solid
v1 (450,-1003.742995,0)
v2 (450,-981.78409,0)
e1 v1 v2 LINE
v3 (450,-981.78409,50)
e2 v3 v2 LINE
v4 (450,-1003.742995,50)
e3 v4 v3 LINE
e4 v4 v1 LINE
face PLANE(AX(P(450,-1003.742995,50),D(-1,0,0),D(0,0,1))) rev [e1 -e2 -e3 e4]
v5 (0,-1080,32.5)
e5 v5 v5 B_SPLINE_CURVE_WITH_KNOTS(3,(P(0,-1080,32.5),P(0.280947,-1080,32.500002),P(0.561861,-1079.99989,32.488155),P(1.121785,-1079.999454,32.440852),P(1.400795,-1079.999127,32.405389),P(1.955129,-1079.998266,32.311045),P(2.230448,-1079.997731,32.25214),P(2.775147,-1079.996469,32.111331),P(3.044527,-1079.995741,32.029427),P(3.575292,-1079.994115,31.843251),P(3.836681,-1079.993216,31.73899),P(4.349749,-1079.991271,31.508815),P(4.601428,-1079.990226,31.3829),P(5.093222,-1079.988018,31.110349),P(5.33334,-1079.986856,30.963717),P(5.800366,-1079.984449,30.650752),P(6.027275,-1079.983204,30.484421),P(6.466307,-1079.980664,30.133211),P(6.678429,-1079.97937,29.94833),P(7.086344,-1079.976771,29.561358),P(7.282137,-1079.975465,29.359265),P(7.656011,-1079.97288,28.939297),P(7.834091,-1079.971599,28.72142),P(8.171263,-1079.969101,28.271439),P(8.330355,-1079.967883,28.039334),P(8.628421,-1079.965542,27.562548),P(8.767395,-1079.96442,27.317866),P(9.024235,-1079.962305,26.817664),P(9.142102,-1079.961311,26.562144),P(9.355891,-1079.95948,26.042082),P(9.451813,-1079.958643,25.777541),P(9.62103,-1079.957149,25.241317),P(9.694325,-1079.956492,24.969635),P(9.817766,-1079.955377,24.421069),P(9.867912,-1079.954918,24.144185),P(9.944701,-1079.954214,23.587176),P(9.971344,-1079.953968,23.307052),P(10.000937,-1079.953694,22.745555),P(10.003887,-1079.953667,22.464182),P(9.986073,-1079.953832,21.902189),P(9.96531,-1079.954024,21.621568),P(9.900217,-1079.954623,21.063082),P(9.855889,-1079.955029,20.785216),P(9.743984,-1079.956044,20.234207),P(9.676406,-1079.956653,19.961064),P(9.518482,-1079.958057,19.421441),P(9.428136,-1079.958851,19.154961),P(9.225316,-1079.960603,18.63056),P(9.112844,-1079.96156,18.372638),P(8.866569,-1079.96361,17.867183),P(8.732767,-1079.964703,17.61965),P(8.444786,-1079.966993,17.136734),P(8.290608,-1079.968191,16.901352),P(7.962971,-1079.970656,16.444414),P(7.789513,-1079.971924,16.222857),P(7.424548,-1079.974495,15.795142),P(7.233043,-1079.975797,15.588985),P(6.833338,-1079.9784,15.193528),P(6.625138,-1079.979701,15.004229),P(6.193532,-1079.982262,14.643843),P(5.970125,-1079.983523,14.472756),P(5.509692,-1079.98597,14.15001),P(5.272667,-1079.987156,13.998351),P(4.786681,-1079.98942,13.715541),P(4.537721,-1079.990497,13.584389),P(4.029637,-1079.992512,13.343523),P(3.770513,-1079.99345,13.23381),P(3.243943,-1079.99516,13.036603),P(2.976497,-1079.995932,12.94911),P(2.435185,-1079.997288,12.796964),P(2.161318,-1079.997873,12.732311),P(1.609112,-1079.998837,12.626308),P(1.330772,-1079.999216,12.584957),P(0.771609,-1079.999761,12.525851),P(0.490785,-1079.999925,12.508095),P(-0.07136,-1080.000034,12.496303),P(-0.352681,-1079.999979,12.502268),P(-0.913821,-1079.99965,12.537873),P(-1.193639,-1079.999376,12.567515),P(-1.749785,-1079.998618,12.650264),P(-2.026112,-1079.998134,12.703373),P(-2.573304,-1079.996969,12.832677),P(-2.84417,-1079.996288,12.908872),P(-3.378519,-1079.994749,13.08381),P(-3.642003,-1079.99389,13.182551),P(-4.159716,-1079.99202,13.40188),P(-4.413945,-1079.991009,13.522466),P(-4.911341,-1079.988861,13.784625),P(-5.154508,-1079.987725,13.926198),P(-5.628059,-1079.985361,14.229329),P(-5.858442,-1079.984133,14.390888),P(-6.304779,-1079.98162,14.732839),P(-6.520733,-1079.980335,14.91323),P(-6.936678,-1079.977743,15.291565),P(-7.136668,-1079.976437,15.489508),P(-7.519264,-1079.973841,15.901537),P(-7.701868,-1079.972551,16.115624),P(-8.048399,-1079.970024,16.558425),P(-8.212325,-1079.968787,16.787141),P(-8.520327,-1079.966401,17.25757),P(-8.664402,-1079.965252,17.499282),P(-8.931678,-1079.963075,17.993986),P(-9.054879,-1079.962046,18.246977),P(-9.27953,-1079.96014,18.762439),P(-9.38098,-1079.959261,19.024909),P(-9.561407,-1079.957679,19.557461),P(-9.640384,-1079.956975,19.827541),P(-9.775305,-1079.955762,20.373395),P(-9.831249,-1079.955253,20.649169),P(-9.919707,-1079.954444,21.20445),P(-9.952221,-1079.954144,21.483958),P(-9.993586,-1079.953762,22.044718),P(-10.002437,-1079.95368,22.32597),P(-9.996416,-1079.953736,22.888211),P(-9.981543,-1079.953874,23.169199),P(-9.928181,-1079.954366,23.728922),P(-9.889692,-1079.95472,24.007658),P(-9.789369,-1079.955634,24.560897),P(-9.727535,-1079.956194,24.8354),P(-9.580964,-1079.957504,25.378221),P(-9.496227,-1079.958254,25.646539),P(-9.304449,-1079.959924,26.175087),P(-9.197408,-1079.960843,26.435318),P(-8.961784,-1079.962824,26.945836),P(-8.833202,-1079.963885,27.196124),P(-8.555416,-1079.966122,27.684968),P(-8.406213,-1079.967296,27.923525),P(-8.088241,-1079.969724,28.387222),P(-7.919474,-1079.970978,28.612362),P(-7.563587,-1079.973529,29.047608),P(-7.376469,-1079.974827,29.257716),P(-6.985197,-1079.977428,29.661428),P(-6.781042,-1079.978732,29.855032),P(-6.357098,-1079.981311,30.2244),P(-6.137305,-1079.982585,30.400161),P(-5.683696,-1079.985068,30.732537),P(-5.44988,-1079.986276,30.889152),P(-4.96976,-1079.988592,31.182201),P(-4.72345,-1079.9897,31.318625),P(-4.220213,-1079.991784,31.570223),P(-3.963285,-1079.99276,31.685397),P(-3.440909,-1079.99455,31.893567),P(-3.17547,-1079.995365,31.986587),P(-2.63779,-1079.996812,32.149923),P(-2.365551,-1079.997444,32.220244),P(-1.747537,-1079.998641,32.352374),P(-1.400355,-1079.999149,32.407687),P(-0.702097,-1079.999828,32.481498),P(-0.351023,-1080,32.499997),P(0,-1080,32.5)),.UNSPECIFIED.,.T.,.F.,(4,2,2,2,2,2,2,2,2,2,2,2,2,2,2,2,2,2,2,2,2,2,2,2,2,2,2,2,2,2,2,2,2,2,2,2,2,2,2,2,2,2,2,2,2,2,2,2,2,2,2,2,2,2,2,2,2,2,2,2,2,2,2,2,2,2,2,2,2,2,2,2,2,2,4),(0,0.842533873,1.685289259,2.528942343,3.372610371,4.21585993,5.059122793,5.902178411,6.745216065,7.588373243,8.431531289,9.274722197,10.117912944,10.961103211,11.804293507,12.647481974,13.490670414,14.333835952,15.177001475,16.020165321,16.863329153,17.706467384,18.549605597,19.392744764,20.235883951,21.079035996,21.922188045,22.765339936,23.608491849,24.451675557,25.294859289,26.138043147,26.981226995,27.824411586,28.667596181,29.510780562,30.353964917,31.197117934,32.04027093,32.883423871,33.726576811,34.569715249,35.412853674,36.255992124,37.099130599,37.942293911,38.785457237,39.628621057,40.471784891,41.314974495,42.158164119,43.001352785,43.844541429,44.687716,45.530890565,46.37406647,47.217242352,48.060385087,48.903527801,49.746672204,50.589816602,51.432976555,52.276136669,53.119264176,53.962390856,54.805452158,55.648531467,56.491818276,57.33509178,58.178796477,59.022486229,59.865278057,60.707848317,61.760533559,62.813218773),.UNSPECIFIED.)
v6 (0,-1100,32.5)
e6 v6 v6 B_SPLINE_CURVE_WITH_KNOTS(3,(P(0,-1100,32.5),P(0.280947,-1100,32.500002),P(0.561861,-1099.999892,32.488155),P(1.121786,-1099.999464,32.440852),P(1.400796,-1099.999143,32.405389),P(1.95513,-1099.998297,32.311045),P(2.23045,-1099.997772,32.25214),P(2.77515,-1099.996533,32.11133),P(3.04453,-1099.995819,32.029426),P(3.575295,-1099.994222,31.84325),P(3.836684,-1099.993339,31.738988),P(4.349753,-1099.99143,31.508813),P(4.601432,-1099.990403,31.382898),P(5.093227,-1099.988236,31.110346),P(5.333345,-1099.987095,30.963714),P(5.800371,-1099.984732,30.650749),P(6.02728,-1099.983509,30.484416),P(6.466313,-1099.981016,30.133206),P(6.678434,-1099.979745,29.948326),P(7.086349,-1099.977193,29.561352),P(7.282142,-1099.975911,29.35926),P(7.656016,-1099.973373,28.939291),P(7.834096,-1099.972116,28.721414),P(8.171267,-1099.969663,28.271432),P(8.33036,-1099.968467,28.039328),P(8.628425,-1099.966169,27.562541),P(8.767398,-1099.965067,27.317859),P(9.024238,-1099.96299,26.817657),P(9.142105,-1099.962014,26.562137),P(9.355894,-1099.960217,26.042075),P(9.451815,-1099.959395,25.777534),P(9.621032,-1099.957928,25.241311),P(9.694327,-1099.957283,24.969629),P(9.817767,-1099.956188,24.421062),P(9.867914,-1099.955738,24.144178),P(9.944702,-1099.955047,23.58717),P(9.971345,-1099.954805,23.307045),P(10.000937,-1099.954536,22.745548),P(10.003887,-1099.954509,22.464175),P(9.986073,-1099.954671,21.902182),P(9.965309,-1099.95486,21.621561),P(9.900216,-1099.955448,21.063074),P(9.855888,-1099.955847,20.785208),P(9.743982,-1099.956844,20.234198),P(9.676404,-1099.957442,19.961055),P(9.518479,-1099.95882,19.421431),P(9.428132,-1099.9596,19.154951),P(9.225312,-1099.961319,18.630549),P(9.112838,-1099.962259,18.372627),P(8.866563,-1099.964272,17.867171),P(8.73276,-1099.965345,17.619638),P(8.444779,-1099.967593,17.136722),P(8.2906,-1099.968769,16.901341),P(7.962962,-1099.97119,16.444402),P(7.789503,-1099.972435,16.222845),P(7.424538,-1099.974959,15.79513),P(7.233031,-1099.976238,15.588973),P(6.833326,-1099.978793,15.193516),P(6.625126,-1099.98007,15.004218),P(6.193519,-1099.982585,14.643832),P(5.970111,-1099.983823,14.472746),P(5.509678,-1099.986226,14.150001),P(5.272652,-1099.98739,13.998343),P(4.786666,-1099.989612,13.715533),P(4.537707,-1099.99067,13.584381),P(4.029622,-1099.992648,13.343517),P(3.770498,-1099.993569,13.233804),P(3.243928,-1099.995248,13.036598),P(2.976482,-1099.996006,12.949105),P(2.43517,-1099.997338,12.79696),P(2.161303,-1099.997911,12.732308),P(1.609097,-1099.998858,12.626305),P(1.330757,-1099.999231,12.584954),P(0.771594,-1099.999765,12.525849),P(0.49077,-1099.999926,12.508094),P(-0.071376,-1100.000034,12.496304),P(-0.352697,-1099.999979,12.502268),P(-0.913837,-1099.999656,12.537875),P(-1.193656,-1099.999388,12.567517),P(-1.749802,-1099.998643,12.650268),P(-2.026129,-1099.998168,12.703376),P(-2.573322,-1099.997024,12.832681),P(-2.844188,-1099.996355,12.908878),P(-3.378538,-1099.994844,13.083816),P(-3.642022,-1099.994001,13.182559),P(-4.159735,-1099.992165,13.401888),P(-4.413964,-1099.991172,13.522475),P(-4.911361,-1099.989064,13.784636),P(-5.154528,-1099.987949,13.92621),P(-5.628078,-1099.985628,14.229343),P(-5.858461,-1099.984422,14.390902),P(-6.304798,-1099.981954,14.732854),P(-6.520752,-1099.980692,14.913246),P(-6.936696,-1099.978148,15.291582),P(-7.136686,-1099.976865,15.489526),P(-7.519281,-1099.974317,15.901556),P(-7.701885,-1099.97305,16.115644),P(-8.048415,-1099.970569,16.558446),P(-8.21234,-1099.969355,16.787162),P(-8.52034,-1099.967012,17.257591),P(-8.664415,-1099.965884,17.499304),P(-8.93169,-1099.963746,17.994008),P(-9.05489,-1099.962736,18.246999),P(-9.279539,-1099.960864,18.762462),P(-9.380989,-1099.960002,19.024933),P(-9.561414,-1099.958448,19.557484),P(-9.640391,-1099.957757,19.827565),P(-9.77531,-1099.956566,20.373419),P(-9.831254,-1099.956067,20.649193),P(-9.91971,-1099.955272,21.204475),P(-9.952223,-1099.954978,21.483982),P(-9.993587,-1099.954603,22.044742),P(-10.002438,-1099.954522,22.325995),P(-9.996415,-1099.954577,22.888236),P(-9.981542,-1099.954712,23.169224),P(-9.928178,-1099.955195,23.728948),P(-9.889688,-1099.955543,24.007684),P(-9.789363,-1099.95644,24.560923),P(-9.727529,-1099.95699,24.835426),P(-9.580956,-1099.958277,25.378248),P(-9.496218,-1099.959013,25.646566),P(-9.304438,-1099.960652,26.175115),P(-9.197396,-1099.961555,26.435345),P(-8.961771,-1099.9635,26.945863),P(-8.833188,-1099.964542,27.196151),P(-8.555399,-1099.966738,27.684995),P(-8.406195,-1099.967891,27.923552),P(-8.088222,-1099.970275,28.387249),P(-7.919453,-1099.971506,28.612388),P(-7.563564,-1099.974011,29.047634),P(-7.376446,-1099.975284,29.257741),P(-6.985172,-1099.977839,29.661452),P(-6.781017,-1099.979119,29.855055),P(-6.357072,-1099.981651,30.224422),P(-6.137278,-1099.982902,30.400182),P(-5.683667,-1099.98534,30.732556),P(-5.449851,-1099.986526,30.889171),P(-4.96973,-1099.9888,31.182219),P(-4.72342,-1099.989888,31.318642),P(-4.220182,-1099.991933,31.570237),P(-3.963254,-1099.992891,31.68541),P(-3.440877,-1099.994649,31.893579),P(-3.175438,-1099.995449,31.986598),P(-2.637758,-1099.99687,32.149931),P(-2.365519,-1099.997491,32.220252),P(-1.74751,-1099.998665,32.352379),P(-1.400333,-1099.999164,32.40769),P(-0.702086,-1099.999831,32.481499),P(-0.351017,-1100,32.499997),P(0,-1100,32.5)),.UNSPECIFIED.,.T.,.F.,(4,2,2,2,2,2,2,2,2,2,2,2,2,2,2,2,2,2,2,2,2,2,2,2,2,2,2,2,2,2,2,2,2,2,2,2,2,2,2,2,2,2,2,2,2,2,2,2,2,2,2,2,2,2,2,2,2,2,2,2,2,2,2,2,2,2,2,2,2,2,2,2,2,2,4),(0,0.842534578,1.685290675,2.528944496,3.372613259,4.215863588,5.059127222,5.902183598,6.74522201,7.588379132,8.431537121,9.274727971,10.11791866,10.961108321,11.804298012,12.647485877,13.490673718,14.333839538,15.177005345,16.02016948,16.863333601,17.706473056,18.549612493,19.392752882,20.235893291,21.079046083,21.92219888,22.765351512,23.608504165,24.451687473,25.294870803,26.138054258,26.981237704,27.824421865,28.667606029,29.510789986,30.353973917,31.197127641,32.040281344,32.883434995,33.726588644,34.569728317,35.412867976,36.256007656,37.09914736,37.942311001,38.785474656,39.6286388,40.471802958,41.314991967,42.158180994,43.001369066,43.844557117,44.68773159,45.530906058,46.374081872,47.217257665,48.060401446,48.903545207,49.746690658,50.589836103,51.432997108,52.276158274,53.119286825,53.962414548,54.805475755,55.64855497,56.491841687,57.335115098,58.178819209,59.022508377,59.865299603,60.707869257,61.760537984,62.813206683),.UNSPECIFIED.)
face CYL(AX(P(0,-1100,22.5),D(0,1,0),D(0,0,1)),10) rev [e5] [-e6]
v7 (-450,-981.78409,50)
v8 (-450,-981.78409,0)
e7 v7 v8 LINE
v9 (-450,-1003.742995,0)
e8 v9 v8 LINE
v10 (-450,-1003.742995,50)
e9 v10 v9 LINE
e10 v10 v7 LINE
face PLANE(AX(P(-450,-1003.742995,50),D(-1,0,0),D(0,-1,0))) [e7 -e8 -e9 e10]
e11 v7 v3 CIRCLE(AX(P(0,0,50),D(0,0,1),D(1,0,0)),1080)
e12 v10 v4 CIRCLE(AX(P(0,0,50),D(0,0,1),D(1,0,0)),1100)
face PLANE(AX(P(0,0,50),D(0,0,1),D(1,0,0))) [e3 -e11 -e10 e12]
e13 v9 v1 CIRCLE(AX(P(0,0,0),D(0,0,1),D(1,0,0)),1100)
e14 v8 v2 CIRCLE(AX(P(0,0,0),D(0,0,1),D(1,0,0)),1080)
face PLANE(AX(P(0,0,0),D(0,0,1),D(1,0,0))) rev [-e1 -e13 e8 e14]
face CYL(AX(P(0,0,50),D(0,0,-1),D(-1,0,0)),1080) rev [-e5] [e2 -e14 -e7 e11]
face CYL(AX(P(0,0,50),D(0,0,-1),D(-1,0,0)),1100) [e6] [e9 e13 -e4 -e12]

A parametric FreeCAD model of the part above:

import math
import FreeCAD as App
import Part
import Sketcher

doc = App.newDocument("Part")
params = doc.addObject("Spreadsheet::Sheet", "Params")
for row, (alias, value) in enumerate([
    ("sketch1_radius", "1100 mm"),
    ("sketch1_radius2", "1080 mm"),
    ("pad1_length", "50 mm"),
    ("sketch2_diameter", "20 mm"),
], start=1):
    params.set(f"A{row}", alias)
    params.set(f"B{row}", "=" + value)
    params.setAlias(f"B{row}", alias)

body = doc.addObject("PartDesign::Body", "Body")

# Sketch on XY plane
sketch1 = doc.addObject("Sketcher::SketchObject", "Sketch")
body.addObject(sketch1)
sketch1.AttachmentSupport = (doc.XY_Plane, [""])
sketch1.MapMode = "FlatFace"
sketch1.addGeometry([
    Part.LineSegment(App.Vector(-450, -981.78409, 0), App.Vector(-450, -1003.742995, 0)),
    Part.ArcOfCircle(Part.Circle(App.Vector(0, 0, 0), App.Vector(0, 0, 1), 1100), math.radians(-114.14774), math.radians(-65.85226)),
    Part.LineSegment(App.Vector(450, -1003.742995, 0), App.Vector(450, -981.78409, 0)),
    Part.ArcOfCircle(Part.Circle(App.Vector(0, 0, 0), App.Vector(0, 0, 1), 1080), math.radians(-114.624318), math.radians(-65.375682)),
], False)
sketch1.addConstraint([
    Sketcher.Constraint("Coincident", 0, 2, 1, 1),
    Sketcher.Constraint("Coincident", 1, 2, 2, 1),
    Sketcher.Constraint("Coincident", 2, 2, 3, 2),
    Sketcher.Constraint("Coincident", 3, 1, 0, 1),
    Sketcher.Constraint("Vertical", 0),
    Sketcher.Constraint("Vertical", 2),
    Sketcher.Constraint("Coincident", 1, 3, -1, 1),
    Sketcher.Constraint("Coincident", 3, 3, -1, 1),
    Sketcher.Constraint("Equal", 0, 2),
    Sketcher.Constraint("Radius", 1, 1100.0),
    Sketcher.Constraint("Radius", 3, 1080.0),
    Sketcher.Constraint("DistanceX", 0, 2, -1, 1, 450.0),
])
sketch1.setExpression("Constraints[9]", "Params.sketch1_radius")
sketch1.setExpression("Constraints[10]", "Params.sketch1_radius2")
pad1 = doc.addObject("PartDesign::Pad", "Pad")
body.addObject(pad1)
pad1.Profile = sketch1
pad1.setExpression("Length", "Params.pad1_length")

# Sketch on XZ plane
sketch2 = doc.addObject("Sketcher::SketchObject", "Sketch001")
body.addObject(sketch2)
sketch2.AttachmentSupport = (doc.XZ_Plane, [""])
sketch2.MapMode = "FlatFace"
sketch2.addGeometry(Part.Circle(App.Vector(0, 22.5, 0), App.Vector(0, 0, 1), 10), False)
sketch2.addConstraint([
    Sketcher.Constraint("PointOnObject", 0, 3, -2),
    Sketcher.Constraint("Diameter", 0, 20.0),
    Sketcher.Constraint("DistanceY", -1, 1, 0, 3, 22.5),
])
sketch2.setExpression("Constraints[1]", "Params.sketch2_diameter")
pocket1 = doc.addObject("PartDesign::Pocket", "Pocket")
body.addObject(pocket1)
pocket1.Profile = sketch2
pocket1.Type = "ThroughAll"
pocket1.Reversed = True

doc.recompute()
